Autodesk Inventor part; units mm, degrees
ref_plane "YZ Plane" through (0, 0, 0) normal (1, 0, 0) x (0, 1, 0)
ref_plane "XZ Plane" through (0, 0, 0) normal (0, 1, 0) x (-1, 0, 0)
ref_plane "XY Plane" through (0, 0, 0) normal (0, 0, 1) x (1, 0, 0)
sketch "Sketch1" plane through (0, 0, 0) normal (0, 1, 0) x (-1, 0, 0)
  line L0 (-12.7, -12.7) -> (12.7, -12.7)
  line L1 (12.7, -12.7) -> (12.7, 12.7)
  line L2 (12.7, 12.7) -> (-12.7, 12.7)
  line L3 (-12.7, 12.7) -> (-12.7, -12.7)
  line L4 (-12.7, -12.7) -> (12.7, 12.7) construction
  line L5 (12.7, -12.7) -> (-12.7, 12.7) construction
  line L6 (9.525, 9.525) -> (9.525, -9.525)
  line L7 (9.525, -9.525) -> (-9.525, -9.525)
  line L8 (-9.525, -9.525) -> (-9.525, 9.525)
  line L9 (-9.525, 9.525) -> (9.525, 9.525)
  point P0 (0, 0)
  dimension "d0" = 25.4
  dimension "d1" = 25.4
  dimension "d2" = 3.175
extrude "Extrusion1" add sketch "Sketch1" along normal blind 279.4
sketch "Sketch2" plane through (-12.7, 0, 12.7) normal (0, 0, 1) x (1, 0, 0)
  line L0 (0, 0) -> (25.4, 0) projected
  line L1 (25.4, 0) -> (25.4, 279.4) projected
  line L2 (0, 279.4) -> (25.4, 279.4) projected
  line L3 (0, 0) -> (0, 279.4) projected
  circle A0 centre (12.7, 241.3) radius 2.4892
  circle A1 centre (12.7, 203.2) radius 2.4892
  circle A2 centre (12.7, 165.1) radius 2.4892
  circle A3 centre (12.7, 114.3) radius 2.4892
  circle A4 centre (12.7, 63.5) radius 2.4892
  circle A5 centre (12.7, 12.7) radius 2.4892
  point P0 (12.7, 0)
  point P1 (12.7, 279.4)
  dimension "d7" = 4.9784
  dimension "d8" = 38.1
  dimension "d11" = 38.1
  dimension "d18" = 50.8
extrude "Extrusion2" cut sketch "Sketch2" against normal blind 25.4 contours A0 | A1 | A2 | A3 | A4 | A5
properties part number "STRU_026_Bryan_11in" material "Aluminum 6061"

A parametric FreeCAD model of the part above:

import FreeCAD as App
import Part
import Sketcher
Q = App.Units.Quantity


def add_polygon(sketch, points):
    """Adds a closed chain of lines whose ends are joined by coincident constraints."""
    first, n = sketch.GeometryCount, len(points)
    for a, b in zip(points, points[1:] + points[:1]):
        sketch.addGeometry(Part.LineSegment(App.Vector(*a, 0), App.Vector(*b, 0)), False)
    for i in range(n):
        sketch.addConstraint(Sketcher.Constraint("Coincident", first + i, 2, first + (i + 1) % n, 1))

doc = App.newDocument("Part")
body = doc.addObject("PartDesign::Body", "Body")

# Sketch on XZ plane
sketch1 = doc.addObject("Sketcher::SketchObject", "Sketch")
body.addObject(sketch1)
sketch1.AttachmentSupport = (doc.XZ_Plane, [""])
sketch1.MapMode = "FlatFace"
add_polygon(sketch1, [(13, 13), (13, -13), (-13, -13), (-13, 13)])  # lines 0-3
add_polygon(sketch1, [(10, 10), (-10, 10), (-10, -10), (10, -10)])  # lines 4-7
sketch1.addConstraint(Sketcher.Constraint("Vertical", 0))
sketch1.addConstraint(Sketcher.Constraint("Horizontal", 1))
sketch1.addConstraint(Sketcher.Constraint("Vertical", 2))
sketch1.addConstraint(Sketcher.Constraint("Horizontal", 3))
sketch1.addConstraint(Sketcher.Constraint("Horizontal", 4))
sketch1.addConstraint(Sketcher.Constraint("Vertical", 5))
sketch1.addConstraint(Sketcher.Constraint("Horizontal", 6))
sketch1.addConstraint(Sketcher.Constraint("Vertical", 7))
sketch1.addConstraint(Sketcher.Constraint("Symmetric", 0, 2, 2, 2, -1, 1))
sketch1.addConstraint(Sketcher.Constraint("Symmetric", 4, 2, 6, 2, -1, 1))
sketch1.addConstraint(Sketcher.Constraint("Equal", 3, 0))
sketch1.addConstraint(Sketcher.Constraint("Equal", 6, 5))
sketch1.addConstraint(Sketcher.Constraint("DistanceX", 1, 2, 1, 1, Q("1 in")))
sketch1.addConstraint(Sketcher.Constraint("DistanceX", 2, 2, 4, 2, Q("0.125 in")))
pad1 = doc.addObject("PartDesign::Pad", "Pad")
body.addObject(pad1)
pad1.Profile = sketch1
pad1.Length = Q("11 in")
pad1.Reversed = True

# Sketch on XY plane
sketch2 = doc.addObject("Sketcher::SketchObject", "Sketch001")
body.addObject(sketch2)
sketch2.AttachmentSupport = (doc.XY_Plane, [""])
sketch2.MapMode = "FlatFace"
sketch2.AttachmentOffset = App.Placement(App.Vector(0, 0, 0.5 * 25.4), App.Rotation())
sketch2.addGeometry(Part.Circle(App.Vector(0, 241.3, 0), App.Vector(0, 0, 1), 2.5), False)
sketch2.addGeometry(Part.Circle(App.Vector(0, 203.2, 0), App.Vector(0, 0, 1), 2.5), False)
sketch2.addGeometry(Part.Circle(App.Vector(0, 165.1, 0), App.Vector(0, 0, 1), 2.5), False)
sketch2.addGeometry(Part.Circle(App.Vector(0, 114.3, 0), App.Vector(0, 0, 1), 2.5), False)
sketch2.addGeometry(Part.Circle(App.Vector(0, 63.5, 0), App.Vector(0, 0, 1), 2.5), False)
sketch2.addGeometry(Part.Circle(App.Vector(0, 12.7, 0), App.Vector(0, 0, 1), 2.5), False)
sketch2.addConstraint(Sketcher.Constraint("Equal", 0, 1))
sketch2.addConstraint(Sketcher.Constraint("Equal", 1, 2))
sketch2.addConstraint(Sketcher.Constraint("Equal", 2, 3))
sketch2.addConstraint(Sketcher.Constraint("Equal", 3, 4))
sketch2.addConstraint(Sketcher.Constraint("Equal", 4, 5))
sketch2.addConstraint(Sketcher.Constraint("PointOnObject", 0, 3, -2))
sketch2.addConstraint(Sketcher.Constraint("PointOnObject", 1, 3, -2))
sketch2.addConstraint(Sketcher.Constraint("PointOnObject", 2, 3, -2))
sketch2.addConstraint(Sketcher.Constraint("PointOnObject", 3, 3, -2))
sketch2.addConstraint(Sketcher.Constraint("PointOnObject", 4, 3, -2))
sketch2.addConstraint(Sketcher.Constraint("PointOnObject", 5, 3, -2))
sketch2.addConstraint(Sketcher.Constraint("Diameter", 0, Q("0.196 in")))
sketch2.addConstraint(Sketcher.Constraint("DistanceY", 3, 3, 2, 3, Q("2 in")))
sketch2.addConstraint(Sketcher.Constraint("DistanceY", 4, 3, 3, 3, Q("2 in")))
sketch2.addConstraint(Sketcher.Constraint("DistanceY", 5, 3, 4, 3, Q("2 in")))
sketch2.addConstraint(Sketcher.Constraint("DistanceY", 1, 3, 0, 3, Q("1.5 in")))
sketch2.addConstraint(Sketcher.Constraint("DistanceY", 2, 3, 1, 3, Q("1.5 in")))
sketch2.addConstraint(Sketcher.Constraint("DistanceY", -1, 1, 1, 3, Q("8 in")))
pocket1 = doc.addObject("PartDesign::Pocket", "Pocket")
body.addObject(pocket1)
pocket1.Profile = sketch2
pocket1.Length = Q("1 in")

doc.recompute()
